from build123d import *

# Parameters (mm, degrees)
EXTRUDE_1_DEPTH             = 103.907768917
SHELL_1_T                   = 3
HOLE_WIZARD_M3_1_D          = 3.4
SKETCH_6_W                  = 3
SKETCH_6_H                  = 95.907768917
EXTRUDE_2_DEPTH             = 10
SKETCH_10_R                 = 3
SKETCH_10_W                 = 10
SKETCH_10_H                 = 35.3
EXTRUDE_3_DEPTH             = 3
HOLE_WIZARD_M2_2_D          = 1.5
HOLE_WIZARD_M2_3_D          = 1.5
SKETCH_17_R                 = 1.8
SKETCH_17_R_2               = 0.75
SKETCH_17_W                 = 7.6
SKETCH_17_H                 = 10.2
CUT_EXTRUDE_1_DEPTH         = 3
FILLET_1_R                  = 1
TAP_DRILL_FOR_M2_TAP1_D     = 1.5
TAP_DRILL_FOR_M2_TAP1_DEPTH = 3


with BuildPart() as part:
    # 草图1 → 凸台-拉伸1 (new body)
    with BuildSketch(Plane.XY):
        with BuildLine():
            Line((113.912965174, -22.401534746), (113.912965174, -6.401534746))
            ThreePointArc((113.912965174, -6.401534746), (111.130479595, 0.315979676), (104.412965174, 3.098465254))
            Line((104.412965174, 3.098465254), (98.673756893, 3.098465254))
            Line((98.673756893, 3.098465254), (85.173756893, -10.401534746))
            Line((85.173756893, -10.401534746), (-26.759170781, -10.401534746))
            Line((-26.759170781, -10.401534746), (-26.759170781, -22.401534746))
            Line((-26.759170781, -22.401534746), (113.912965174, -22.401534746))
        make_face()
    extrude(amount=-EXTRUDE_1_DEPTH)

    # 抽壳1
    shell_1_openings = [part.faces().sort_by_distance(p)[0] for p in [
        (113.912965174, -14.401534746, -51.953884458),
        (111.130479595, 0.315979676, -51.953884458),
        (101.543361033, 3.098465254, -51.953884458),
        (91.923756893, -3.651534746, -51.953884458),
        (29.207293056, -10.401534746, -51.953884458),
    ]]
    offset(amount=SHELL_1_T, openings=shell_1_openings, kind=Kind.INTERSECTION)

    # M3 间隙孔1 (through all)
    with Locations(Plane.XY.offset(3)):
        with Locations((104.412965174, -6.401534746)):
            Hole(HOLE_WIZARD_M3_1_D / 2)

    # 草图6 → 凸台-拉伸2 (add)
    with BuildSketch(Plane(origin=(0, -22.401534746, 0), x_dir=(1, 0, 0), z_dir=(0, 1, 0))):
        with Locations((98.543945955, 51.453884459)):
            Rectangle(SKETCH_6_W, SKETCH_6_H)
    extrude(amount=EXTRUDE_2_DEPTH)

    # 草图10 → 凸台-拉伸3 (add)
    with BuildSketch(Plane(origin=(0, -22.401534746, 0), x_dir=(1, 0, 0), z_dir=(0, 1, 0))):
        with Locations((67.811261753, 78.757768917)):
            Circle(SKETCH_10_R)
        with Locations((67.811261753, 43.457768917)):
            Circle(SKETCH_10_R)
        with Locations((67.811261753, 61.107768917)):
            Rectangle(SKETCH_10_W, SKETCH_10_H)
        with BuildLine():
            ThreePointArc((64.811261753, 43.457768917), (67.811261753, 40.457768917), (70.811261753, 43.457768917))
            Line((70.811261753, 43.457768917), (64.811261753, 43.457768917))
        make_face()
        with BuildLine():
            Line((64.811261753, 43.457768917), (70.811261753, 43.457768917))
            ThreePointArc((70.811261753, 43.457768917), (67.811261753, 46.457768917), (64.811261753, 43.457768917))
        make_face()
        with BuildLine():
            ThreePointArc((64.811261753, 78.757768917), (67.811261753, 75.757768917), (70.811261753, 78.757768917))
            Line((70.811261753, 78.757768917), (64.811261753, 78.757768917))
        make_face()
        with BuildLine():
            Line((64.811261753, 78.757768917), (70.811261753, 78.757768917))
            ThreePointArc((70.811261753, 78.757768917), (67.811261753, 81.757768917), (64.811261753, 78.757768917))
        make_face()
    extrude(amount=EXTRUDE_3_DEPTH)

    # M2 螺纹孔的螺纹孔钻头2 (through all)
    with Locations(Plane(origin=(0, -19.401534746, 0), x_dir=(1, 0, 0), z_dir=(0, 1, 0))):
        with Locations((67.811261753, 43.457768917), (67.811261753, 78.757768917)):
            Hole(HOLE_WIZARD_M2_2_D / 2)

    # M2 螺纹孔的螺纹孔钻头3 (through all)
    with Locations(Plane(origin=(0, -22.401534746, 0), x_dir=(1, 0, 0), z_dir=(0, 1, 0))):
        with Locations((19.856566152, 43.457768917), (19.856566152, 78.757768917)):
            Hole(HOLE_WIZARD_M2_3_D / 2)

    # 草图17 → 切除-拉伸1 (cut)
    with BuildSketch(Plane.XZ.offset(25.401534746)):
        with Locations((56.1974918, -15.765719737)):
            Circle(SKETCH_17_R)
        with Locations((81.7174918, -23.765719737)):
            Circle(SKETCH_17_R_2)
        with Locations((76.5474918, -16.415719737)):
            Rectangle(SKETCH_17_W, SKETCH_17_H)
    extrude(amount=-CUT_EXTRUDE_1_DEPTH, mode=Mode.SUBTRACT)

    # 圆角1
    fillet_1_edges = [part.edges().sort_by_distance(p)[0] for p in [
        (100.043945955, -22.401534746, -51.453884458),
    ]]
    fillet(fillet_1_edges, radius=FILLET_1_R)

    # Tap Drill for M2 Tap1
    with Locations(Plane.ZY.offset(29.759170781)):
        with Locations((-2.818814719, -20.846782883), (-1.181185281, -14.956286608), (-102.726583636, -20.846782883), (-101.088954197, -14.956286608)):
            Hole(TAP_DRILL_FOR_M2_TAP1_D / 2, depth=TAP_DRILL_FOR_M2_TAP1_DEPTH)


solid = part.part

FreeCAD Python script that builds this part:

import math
import FreeCAD as App
import Part
import Sketcher

V = App.Vector
Q = App.Units.Quantity


def edges_at(feature, points):
    """Names of the edges that pass closest to the given points."""
    edges = feature.Shape.Edges
    near = lambda p: min(range(len(edges)), key=lambda i: edges[i].distToShape(Part.Vertex(*p))[0])
    return sorted({f"Edge{near(p) + 1}" for p in points})


def faces_at(feature, points):
    """Names of the faces that lie closest to the given points."""
    faces = feature.Shape.Faces
    near = lambda p: min(range(len(faces)), key=lambda i: faces[i].distToShape(Part.Vertex(*p))[0])
    return sorted({f"Face{near(p) + 1}" for p in points})

doc = App.newDocument("Part")
params = doc.addObject("Spreadsheet::Sheet", "Params")
for row, (alias, value) in enumerate([
    ("sketch1_radius", "9.5 mm"),
    ("sketch1_height", "16 mm"),
    ("sketch1_height2", "12 mm"),
    ("pad1_length", "103.907769 mm"),
    ("thickness_wall", "3 mm"),
    ("sketch2_diameter", "3.4 mm"),
    ("hole_diameter", "3.4 mm"),
    ("sketch3_width", "3 mm"),
    ("pad2_length", "10 mm"),
    ("sketch4_radius", "3 mm"),
    ("sketch4_width", "2 mm"),
    ("sketch4_height", "35.3 mm"),
    ("pad3_length", "3 mm"),
    ("sketch5_diameter", "1.5 mm"),
    ("hole2_diameter", "1.5 mm"),
    ("sketch6_diameter", "1.5 mm"),
    ("hole3_diameter", "1.5 mm"),
    ("sketch7_diameter", "3.6 mm"),
    ("sketch7_diameter2", "1.5 mm"),
    ("sketch7_width", "7.6 mm"),
    ("sketch7_height", "10.2 mm"),
    ("pocket1_length", "3 mm"),
    ("fillet_radius", "1 mm"),
    ("sketch8_diameter", "1.5 mm"),
    ("hole4_diameter", "1.5 mm"),
    ("hole4_depth", "3 mm"),
], start=1):
    params.set(f"A{row}", alias)
    params.set(f"B{row}", "=" + value)
    params.setAlias(f"B{row}", alias)

body = doc.addObject("PartDesign::Body", "Body")

# Sketch on XY plane
sketch1 = body.newObject("Sketcher::SketchObject", "Sketch")
sketch1.AttachmentSupport = (doc.getObject("XY_Plane"), [""])
sketch1.MapMode = "FlatFace"
sketch1.addGeometry(Part.LineSegment(V(113.912965, -22.401535, 0), V(113.912965, -6.401535, 0)), False)
sketch1.addGeometry(Part.ArcOfCircle(Part.Circle(V(104.412965, -6.401535, 0), V(0, 0, 1), 9.5), math.radians(0), math.radians(90)), False)
sketch1.addGeometry(Part.LineSegment(V(104.412965, 3.098465, 0), V(98.673757, 3.098465, 0)), False)
sketch1.addGeometry(Part.LineSegment(V(98.673757, 3.098465, 0), V(85.173757, -10.401535, 0)), False)
sketch1.addGeometry(Part.LineSegment(V(85.173757, -10.401535, 0), V(-26.759171, -10.401535, 0)), False)
sketch1.addGeometry(Part.LineSegment(V(-26.759171, -10.401535, 0), V(-26.759171, -22.401535, 0)), False)
sketch1.addGeometry(Part.LineSegment(V(-26.759171, -22.401535, 0), V(113.912965, -22.401535, 0)), False)
sketch1.addConstraint(Sketcher.Constraint("Tangent", 0, 2, 1, 1))
sketch1.addConstraint(Sketcher.Constraint("Tangent", 1, 2, 2, 1))
sketch1.addConstraint(Sketcher.Constraint("Coincident", 2, 2, 3, 1))
sketch1.addConstraint(Sketcher.Constraint("Coincident", 3, 2, 4, 1))
sketch1.addConstraint(Sketcher.Constraint("Coincident", 4, 2, 5, 1))
sketch1.addConstraint(Sketcher.Constraint("Coincident", 5, 2, 6, 1))
sketch1.addConstraint(Sketcher.Constraint("Coincident", 6, 2, 0, 1))
sketch1.addConstraint(Sketcher.Constraint("Vertical", 0))
sketch1.addConstraint(Sketcher.Constraint("Horizontal", 2))
sketch1.addConstraint(Sketcher.Constraint("Horizontal", 4))
sketch1.addConstraint(Sketcher.Constraint("Vertical", 5))
sketch1.addConstraint(Sketcher.Constraint("Horizontal", 6))
sketch1.addConstraint(Sketcher.Constraint("Radius", 1, Q("9.5 mm")))
sketch1.addConstraint(Sketcher.Constraint("DistanceY", 0, 1, 0, 2, Q("16 mm")))
sketch1.addConstraint(Sketcher.Constraint("DistanceY", 5, 2, 5, 1, Q("12 mm")))
sketch1.addConstraint(Sketcher.Constraint("Angle", 3, Q("-135 deg")))
sketch1.addConstraint(Sketcher.Constraint("DistanceX", 2, 2, 2, 1, Q("5.739208 mm")))
sketch1.addConstraint(Sketcher.Constraint("DistanceX", 4, 2, 4, 1, Q("111.932928 mm")))
sketch1.addConstraint(Sketcher.Constraint("DistanceX", 4, 2, -1, 1, Q("26.759171 mm")))
sketch1.addConstraint(Sketcher.Constraint("DistanceY", 1, 3, -1, 1, Q("6.401535 mm")))
sketch1.setExpression("Constraints[12]", "Params.sketch1_radius")
sketch1.setExpression("Constraints[13]", "Params.sketch1_height")
sketch1.setExpression("Constraints[14]", "Params.sketch1_height2")
pad1 = body.newObject("PartDesign::Pad", "Pad")
pad1.Profile = sketch1
pad1.setExpression("Length", "Params.pad1_length")
pad1.Reversed = True
doc.recompute()

thickness = body.newObject("PartDesign::Thickness", "Thickness")
thickness.Base = (pad1, faces_at(pad1, [
    (113.913, -14.402, -51.954),
    (111.13, 0.316, -51.954),
    (101.543, 3.098, -51.954),
    (91.924, -3.652, -51.954),
    (29.207, -10.402, -51.954),
]))
thickness.setExpression("Value", "Params.thickness_wall")
thickness.Reversed = False
thickness.Join = "Intersection"

# Sketch on XY plane
sketch2 = body.newObject("Sketcher::SketchObject", "Sketch001")
sketch2.AttachmentSupport = (doc.getObject("XY_Plane"), [""])
sketch2.MapMode = "FlatFace"
sketch2.AttachmentOffset = App.Placement(V(0, 0, 3), App.Rotation())
sketch2.addGeometry(Part.Circle(V(104.412965, -6.401535, 0), V(0, 0, 1), 1.7), False)
sketch2.addConstraint(Sketcher.Constraint("Diameter", 0, Q("3.4 mm")))
sketch2.addConstraint(Sketcher.Constraint("DistanceX", -1, 1, 0, 3, Q("104.412965 mm")))
sketch2.addConstraint(Sketcher.Constraint("DistanceY", 0, 3, -1, 1, Q("6.401535 mm")))
sketch2.setExpression("Constraints[0]", "Params.sketch2_diameter")
doc.recompute()
hole = body.newObject("PartDesign::Hole", "Hole")
hole.Profile = sketch2
hole.ThreadType = "None"
hole.setExpression("Diameter", "Params.hole_diameter")
hole.DepthType = "ThroughAll"

# Sketch on XZ plane
sketch3 = body.newObject("Sketcher::SketchObject", "Sketch002")
sketch3.AttachmentSupport = (doc.getObject("XZ_Plane"), [""])
sketch3.MapMode = "FlatFace"
sketch3.AttachmentOffset = App.Placement(V(0, 0, 22.401535), App.Rotation())
sketch3.addGeometry(Part.LineSegment(V(97.043946, -99.407769, 0), V(97.043946, -3.5, 0)), False)
sketch3.addGeometry(Part.LineSegment(V(97.043946, -3.5, 0), V(100.043946, -3.5, 0)), False)
sketch3.addGeometry(Part.LineSegment(V(100.043946, -3.5, 0), V(100.043946, -99.407769, 0)), False)
sketch3.addGeometry(Part.LineSegment(V(100.043946, -99.407769, 0), V(97.043946, -99.407769, 0)), False)
sketch3.addConstraint(Sketcher.Constraint("Coincident", 0, 2, 1, 1))
sketch3.addConstraint(Sketcher.Constraint("Coincident", 1, 2, 2, 1))
sketch3.addConstraint(Sketcher.Constraint("Coincident", 2, 2, 3, 1))
sketch3.addConstraint(Sketcher.Constraint("Coincident", 3, 2, 0, 1))
sketch3.addConstraint(Sketcher.Constraint("Vertical", 0))
sketch3.addConstraint(Sketcher.Constraint("Horizontal", 1))
sketch3.addConstraint(Sketcher.Constraint("Vertical", 2))
sketch3.addConstraint(Sketcher.Constraint("Horizontal", 3))
sketch3.addConstraint(Sketcher.Constraint("DistanceX", 1, 1, 1, 2, Q("3 mm")))
sketch3.addConstraint(Sketcher.Constraint("DistanceY", 0, 2, -1, 1, Q("3.5 mm")))
sketch3.addConstraint(Sketcher.Constraint("DistanceY", 0, 1, 0, 2, Q("95.907769 mm")))
sketch3.addConstraint(Sketcher.Constraint("DistanceX", -1, 1, 0, 2, Q("97.043946 mm")))
sketch3.setExpression("Constraints[8]", "Params.sketch3_width")
pad2 = body.newObject("PartDesign::Pad", "Pad001")
pad2.Profile = sketch3
pad2.setExpression("Length", "Params.pad2_length")
pad2.Reversed = True

# Sketch on XZ plane
sketch4 = body.newObject("Sketcher::SketchObject", "Sketch003")
sketch4.AttachmentSupport = (doc.getObject("XZ_Plane"), [""])
sketch4.MapMode = "FlatFace"
sketch4.AttachmentOffset = App.Placement(V(0, 0, 22.401535), App.Rotation())
sketch4.addGeometry(Part.ArcOfCircle(Part.Circle(V(67.811262, -78.757769, 0), V(0, 0, 1), 3), math.radians(180), math.radians(360)), False)
sketch4.addGeometry(Part.LineSegment(V(64.811262, -78.757769, 0), V(62.811262, -78.757769, 0)), False)
sketch4.addGeometry(Part.LineSegment(V(62.811262, -78.757769, 0), V(62.811262, -43.457769, 0)), False)
sketch4.addGeometry(Part.LineSegment(V(62.811262, -43.457769, 0), V(64.811262, -43.457769, 0)), False)
sketch4.addGeometry(Part.ArcOfCircle(Part.Circle(V(67.811262, -43.457769, 0), V(0, 0, 1), 3), math.radians(0), math.radians(180)), False)
sketch4.addGeometry(Part.LineSegment(V(70.811262, -43.457769, 0), V(72.811262, -43.457769, 0)), False)
sketch4.addGeometry(Part.LineSegment(V(72.811262, -43.457769, 0), V(72.811262, -78.757769, 0)), False)
sketch4.addGeometry(Part.LineSegment(V(72.811262, -78.757769, 0), V(70.811262, -78.757769, 0)), False)
sketch4.addConstraint(Sketcher.Constraint("Coincident", 0, 1, 1, 1))
sketch4.addConstraint(Sketcher.Constraint("Coincident", 1, 2, 2, 1))
sketch4.addConstraint(Sketcher.Constraint("Coincident", 2, 2, 3, 1))
sketch4.addConstraint(Sketcher.Constraint("Coincident", 3, 2, 4, 2))
sketch4.addConstraint(Sketcher.Constraint("Coincident", 4, 1, 5, 1))
sketch4.addConstraint(Sketcher.Constraint("Coincident", 5, 2, 6, 1))
sketch4.addConstraint(Sketcher.Constraint("Coincident", 6, 2, 7, 1))
sketch4.addConstraint(Sketcher.Constraint("Coincident", 7, 2, 0, 2))
sketch4.addConstraint(Sketcher.Constraint("Horizontal", 1))
sketch4.addConstraint(Sketcher.Constraint("Vertical", 2))
sketch4.addConstraint(Sketcher.Constraint("Horizontal", 3))
sketch4.addConstraint(Sketcher.Constraint("Horizontal", 5))
sketch4.addConstraint(Sketcher.Constraint("Vertical", 6))
sketch4.addConstraint(Sketcher.Constraint("Horizontal", 7))
sketch4.addConstraint(Sketcher.Constraint("Equal", 0, 4))
sketch4.addConstraint(Sketcher.Constraint("Horizontal", 4, 3, 2, 2))
sketch4.addConstraint(Sketcher.Constraint("Horizontal", 3, 2, 4, 1))
sketch4.addConstraint(Sketcher.Constraint("Horizontal", 1, 2, 6, 2))
sketch4.addConstraint(Sketcher.Constraint("Vertical", 0, 3, 4, 3))
sketch4.addConstraint(Sketcher.Constraint("Equal", 3, 5))
sketch4.addConstraint(Sketcher.Constraint("Radius", 0, Q("3 mm")))
sketch4.addConstraint(Sketcher.Constraint("DistanceX", 1, 2, 1, 1, Q("2 mm")))
sketch4.addConstraint(Sketcher.Constraint("DistanceY", 2, 1, 2, 2, Q("35.3 mm")))
sketch4.addConstraint(Sketcher.Constraint("DistanceY", 0, 3, 4, 3, Q("35.3 mm")))
sketch4.addConstraint(Sketcher.Constraint("DistanceX", -1, 1, 0, 3, Q("67.811262 mm")))
sketch4.addConstraint(Sketcher.Constraint("DistanceY", 0, 3, -1, 1, Q("78.757769 mm")))
sketch4.setExpression("Constraints[20]", "Params.sketch4_radius")
sketch4.setExpression("Constraints[21]", "Params.sketch4_width")
sketch4.setExpression("Constraints[22]", "Params.sketch4_height")
pad3 = body.newObject("PartDesign::Pad", "Pad002")
pad3.Profile = sketch4
pad3.setExpression("Length", "Params.pad3_length")
pad3.Reversed = True

# Sketch on XZ plane
sketch5 = body.newObject("Sketcher::SketchObject", "Sketch004")
sketch5.AttachmentSupport = (doc.getObject("XZ_Plane"), [""])
sketch5.MapMode = "FlatFace"
sketch5.AttachmentOffset = App.Placement(V(0, 0, 19.401535), App.Rotation())
sketch5.addGeometry(Part.Circle(V(67.811262, -43.457769, 0), V(0, 0, 1), 0.75), False)
sketch5.addGeometry(Part.Circle(V(67.811262, -78.757769, 0), V(0, 0, 1), 0.75), False)
sketch5.addConstraint(Sketcher.Constraint("Equal", 0, 1))
sketch5.addConstraint(Sketcher.Constraint("Vertical", 0, 3, 1, 3))
sketch5.addConstraint(Sketcher.Constraint("Diameter", 0, Q("1.5 mm")))
sketch5.addConstraint(Sketcher.Constraint("DistanceY", 1, 3, 0, 3, Q("35.3 mm")))
sketch5.addConstraint(Sketcher.Constraint("DistanceX", -1, 1, 0, 3, Q("67.811262 mm")))
sketch5.addConstraint(Sketcher.Constraint("DistanceY", 0, 3, -1, 1, Q("43.457769 mm")))
sketch5.setExpression("Constraints[2]", "Params.sketch5_diameter")
doc.recompute()
hole2 = body.newObject("PartDesign::Hole", "Hole001")
hole2.Profile = sketch5
hole2.ThreadType = "None"
hole2.setExpression("Diameter", "Params.hole2_diameter")
hole2.DepthType = "ThroughAll"
hole2.Reversed = True

# Sketch on XZ plane
sketch6 = body.newObject("Sketcher::SketchObject", "Sketch005")
sketch6.AttachmentSupport = (doc.getObject("XZ_Plane"), [""])
sketch6.MapMode = "FlatFace"
sketch6.AttachmentOffset = App.Placement(V(0, 0, 22.401535), App.Rotation())
sketch6.addGeometry(Part.Circle(V(19.856566, -43.457769, 0), V(0, 0, 1), 0.75), False)
sketch6.addGeometry(Part.Circle(V(19.856566, -78.757769, 0), V(0, 0, 1), 0.75), False)
sketch6.addConstraint(Sketcher.Constraint("Equal", 0, 1))
sketch6.addConstraint(Sketcher.Constraint("Vertical", 0, 3, 1, 3))
sketch6.addConstraint(Sketcher.Constraint("Diameter", 0, Q("1.5 mm")))
sketch6.addConstraint(Sketcher.Constraint("DistanceY", 1, 3, 0, 3, Q("35.3 mm")))
sketch6.addConstraint(Sketcher.Constraint("DistanceY", 0, 3, -1, 1, Q("43.457769 mm")))
sketch6.addConstraint(Sketcher.Constraint("DistanceX", -1, 1, 0, 3, Q("19.856566 mm")))
sketch6.setExpression("Constraints[2]", "Params.sketch6_diameter")
doc.recompute()
hole3 = body.newObject("PartDesign::Hole", "Hole002")
hole3.Profile = sketch6
hole3.ThreadType = "None"
hole3.setExpression("Diameter", "Params.hole3_diameter")
hole3.DepthType = "ThroughAll"
hole3.Reversed = True

# Sketch on XZ plane
sketch7 = body.newObject("Sketcher::SketchObject", "Sketch006")
sketch7.AttachmentSupport = (doc.getObject("XZ_Plane"), [""])
sketch7.MapMode = "FlatFace"
sketch7.AttachmentOffset = App.Placement(V(0, 0, 25.401535), App.Rotation())
sketch7.addGeometry(Part.Circle(V(56.197492, -15.76572, 0), V(0, 0, 1), 1.8), False)
sketch7.addGeometry(Part.Circle(V(81.717492, -23.76572, 0), V(0, 0, 1), 0.75), False)
sketch7.addGeometry(Part.LineSegment(V(72.747492, -11.31572, 0), V(72.747492, -21.51572, 0)), False)
sketch7.addGeometry(Part.LineSegment(V(72.747492, -21.51572, 0), V(80.347492, -21.51572, 0)), False)
sketch7.addGeometry(Part.LineSegment(V(80.347492, -21.51572, 0), V(80.347492, -11.31572, 0)), False)
sketch7.addGeometry(Part.LineSegment(V(80.347492, -11.31572, 0), V(72.747492, -11.31572, 0)), False)
sketch7.addConstraint(Sketcher.Constraint("Coincident", 2, 2, 3, 1))
sketch7.addConstraint(Sketcher.Constraint("Coincident", 3, 2, 4, 1))
sketch7.addConstraint(Sketcher.Constraint("Coincident", 4, 2, 5, 1))
sketch7.addConstraint(Sketcher.Constraint("Coincident", 5, 2, 2, 1))
sketch7.addConstraint(Sketcher.Constraint("Vertical", 2))
sketch7.addConstraint(Sketcher.Constraint("Horizontal", 3))
sketch7.addConstraint(Sketcher.Constraint("Vertical", 4))
sketch7.addConstraint(Sketcher.Constraint("Horizontal", 5))
sketch7.addConstraint(Sketcher.Constraint("Diameter", 0, Q("3.6 mm")))
sketch7.addConstraint(Sketcher.Constraint("Diameter", 1, Q("1.5 mm")))
sketch7.addConstraint(Sketcher.Constraint("DistanceX", 3, 1, 3, 2, Q("7.6 mm")))
sketch7.addConstraint(Sketcher.Constraint("DistanceY", 2, 2, 2, 1, Q("10.2 mm")))
sketch7.addConstraint(Sketcher.Constraint("DistanceY", 1, 3, 0, 3, Q("8 mm")))
sketch7.addConstraint(Sketcher.Constraint("DistanceX", 0, 3, 1, 3, Q("25.52 mm")))
sketch7.addConstraint(Sketcher.Constraint("DistanceX", 2, 2, 1, 3, Q("8.97 mm")))
sketch7.addConstraint(Sketcher.Constraint("DistanceY", 1, 3, 2, 2, Q("2.25 mm")))
sketch7.addConstraint(Sketcher.Constraint("DistanceX", -1, 1, 0, 3, Q("56.197492 mm")))
sketch7.addConstraint(Sketcher.Constraint("DistanceY", 0, 3, -1, 1, Q("15.76572 mm")))
sketch7.setExpression("Constraints[8]", "Params.sketch7_diameter")
sketch7.setExpression("Constraints[9]", "Params.sketch7_diameter2")
sketch7.setExpression("Constraints[10]", "Params.sketch7_width")
sketch7.setExpression("Constraints[11]", "Params.sketch7_height")
pocket1 = body.newObject("PartDesign::Pocket", "Pocket")
pocket1.Profile = sketch7
pocket1.setExpression("Length", "Params.pocket1_length")
doc.recompute()

fillet = body.newObject("PartDesign::Fillet", "Fillet")
fillet.Base = (pocket1, edges_at(pocket1, [(100.044, -22.402, -51.454)]))
fillet.setExpression("Radius", "Params.fillet_radius")

# Sketch on YZ plane
sketch8 = body.newObject("Sketcher::SketchObject", "Sketch007")
sketch8.AttachmentSupport = (doc.getObject("YZ_Plane"), [""])
sketch8.MapMode = "FlatFace"
sketch8.AttachmentOffset = App.Placement(V(0, 0, -29.759171), App.Rotation())
sketch8.addGeometry(Part.Circle(V(-20.846783, -2.818815, 0), V(0, 0, 1), 0.75), False)
sketch8.addGeometry(Part.Circle(V(-14.956287, -1.181185, 0), V(0, 0, 1), 0.75), False)
sketch8.addGeometry(Part.Circle(V(-20.846783, -102.726584, 0), V(0, 0, 1), 0.75), False)
sketch8.addGeometry(Part.Circle(V(-14.956287, -101.088954, 0), V(0, 0, 1), 0.75), False)
sketch8.addConstraint(Sketcher.Constraint("Equal", 0, 1))
sketch8.addConstraint(Sketcher.Constraint("Equal", 1, 2))
sketch8.addConstraint(Sketcher.Constraint("Equal", 2, 3))
sketch8.addConstraint(Sketcher.Constraint("Vertical", 0, 3, 2, 3))
sketch8.addConstraint(Sketcher.Constraint("Vertical", 1, 3, 3, 3))
sketch8.addConstraint(Sketcher.Constraint("Diameter", 0, Q("1.5 mm")))
sketch8.addConstraint(Sketcher.Constraint("DistanceY", 2, 3, 1, 3, Q("101.545398 mm")))
sketch8.addConstraint(Sketcher.Constraint("DistanceY", 0, 3, 1, 3, Q("1.637629 mm")))
sketch8.addConstraint(Sketcher.Constraint("DistanceY", 2, 3, 3, 3, Q("1.637629 mm")))
sketch8.addConstraint(Sketcher.Constraint("DistanceX", 0, 3, -1, 1, Q("20.846783 mm")))
sketch8.addConstraint(Sketcher.Constraint("DistanceY", 0, 3, -1, 1, Q("2.818815 mm")))
sketch8.addConstraint(Sketcher.Constraint("DistanceX", 1, 3, -1, 1, Q("14.956287 mm")))
sketch8.setExpression("Constraints[5]", "Params.sketch8_diameter")
doc.recompute()
hole4 = body.newObject("PartDesign::Hole", "Hole003")
hole4.Profile = sketch8
hole4.ThreadType = "None"
hole4.setExpression("Diameter", "Params.hole4_diameter")
hole4.DepthType = "Dimension"
hole4.setExpression("Depth", "Params.hole4_depth")
hole4.DrillPoint = "Flat"
hole4.Reversed = True

doc.recompute()
